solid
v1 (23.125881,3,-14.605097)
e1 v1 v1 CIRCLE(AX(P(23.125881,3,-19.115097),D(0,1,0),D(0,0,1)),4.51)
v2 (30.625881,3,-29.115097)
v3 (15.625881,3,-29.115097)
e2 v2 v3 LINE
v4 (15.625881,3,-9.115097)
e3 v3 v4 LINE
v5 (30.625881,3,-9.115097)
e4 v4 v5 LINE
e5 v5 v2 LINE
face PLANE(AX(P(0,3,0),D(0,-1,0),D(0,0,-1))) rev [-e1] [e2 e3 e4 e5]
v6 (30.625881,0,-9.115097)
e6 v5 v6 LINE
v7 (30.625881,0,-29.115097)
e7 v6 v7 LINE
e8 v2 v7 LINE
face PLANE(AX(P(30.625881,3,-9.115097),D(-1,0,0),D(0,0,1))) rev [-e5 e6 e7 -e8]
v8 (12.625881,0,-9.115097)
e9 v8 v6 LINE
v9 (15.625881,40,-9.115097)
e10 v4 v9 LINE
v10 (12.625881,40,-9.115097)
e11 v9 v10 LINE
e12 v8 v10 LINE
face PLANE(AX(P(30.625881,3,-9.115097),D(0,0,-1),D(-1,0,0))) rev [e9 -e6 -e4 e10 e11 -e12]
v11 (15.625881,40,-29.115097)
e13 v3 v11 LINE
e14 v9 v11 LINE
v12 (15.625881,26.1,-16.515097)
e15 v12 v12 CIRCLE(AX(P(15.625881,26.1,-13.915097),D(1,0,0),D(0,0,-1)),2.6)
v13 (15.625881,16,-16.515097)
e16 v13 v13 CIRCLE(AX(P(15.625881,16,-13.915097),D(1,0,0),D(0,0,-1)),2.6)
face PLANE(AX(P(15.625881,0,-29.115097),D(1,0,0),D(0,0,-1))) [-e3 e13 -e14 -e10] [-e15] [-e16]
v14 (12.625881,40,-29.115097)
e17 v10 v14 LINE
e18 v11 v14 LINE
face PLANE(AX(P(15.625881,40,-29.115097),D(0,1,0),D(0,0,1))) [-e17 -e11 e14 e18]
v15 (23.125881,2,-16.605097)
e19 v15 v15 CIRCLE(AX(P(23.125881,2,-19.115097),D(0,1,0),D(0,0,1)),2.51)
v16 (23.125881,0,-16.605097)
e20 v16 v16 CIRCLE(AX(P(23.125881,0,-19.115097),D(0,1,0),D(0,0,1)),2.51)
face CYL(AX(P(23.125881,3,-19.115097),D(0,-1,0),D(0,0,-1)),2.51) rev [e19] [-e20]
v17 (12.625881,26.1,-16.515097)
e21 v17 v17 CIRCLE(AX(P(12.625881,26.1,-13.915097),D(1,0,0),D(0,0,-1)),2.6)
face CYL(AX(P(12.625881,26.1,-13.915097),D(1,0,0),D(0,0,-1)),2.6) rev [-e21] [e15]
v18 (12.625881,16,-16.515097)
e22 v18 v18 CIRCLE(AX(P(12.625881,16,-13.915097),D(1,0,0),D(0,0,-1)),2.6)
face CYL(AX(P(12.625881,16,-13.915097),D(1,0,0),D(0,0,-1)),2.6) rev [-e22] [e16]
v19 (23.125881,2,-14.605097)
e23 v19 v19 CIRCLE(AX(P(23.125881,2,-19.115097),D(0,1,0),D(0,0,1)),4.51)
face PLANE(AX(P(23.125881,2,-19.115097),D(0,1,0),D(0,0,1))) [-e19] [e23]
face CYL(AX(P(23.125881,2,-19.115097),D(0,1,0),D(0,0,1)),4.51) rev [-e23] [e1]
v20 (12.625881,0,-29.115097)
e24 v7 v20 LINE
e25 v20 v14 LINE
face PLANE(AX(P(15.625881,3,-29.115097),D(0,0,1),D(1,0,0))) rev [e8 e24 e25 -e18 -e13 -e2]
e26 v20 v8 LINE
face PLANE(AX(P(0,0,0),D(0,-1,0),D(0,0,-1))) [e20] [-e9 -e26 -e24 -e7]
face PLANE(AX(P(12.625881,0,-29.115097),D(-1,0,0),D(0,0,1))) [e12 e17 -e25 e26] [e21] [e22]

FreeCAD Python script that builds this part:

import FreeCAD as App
import Part
import Sketcher

V = App.Vector

doc = App.newDocument("Part")
body = doc.addObject("PartDesign::Body", "Body")

# Sketch on XZ plane
sketch1 = doc.addObject("Sketcher::SketchObject", "Sketch")
body.addObject(sketch1)
sketch1.AttachmentSupport = (doc.XZ_Plane, [""])
sketch1.MapMode = "FlatFace"
sketch1.addGeometry(Part.LineSegment(V(15.6, -29.1, 0), V(15.6, -9.1, 0)), False)
sketch1.addGeometry(Part.LineSegment(V(15.6, -9.1, 0), V(30.6, -9.1, 0)), False)
sketch1.addGeometry(Part.LineSegment(V(30.6, -9.1, 0), V(30.6, -29.1, 0)), False)
sketch1.addGeometry(Part.LineSegment(V(30.6, -29.1, 0), V(15.6, -29.1, 0)), False)
sketch1.addGeometry(Part.Circle(V(23.1, -19.1, 0), V(0, 0, 1), 2.5), False)
sketch1.addConstraint(Sketcher.Constraint("Coincident", 0, 2, 1, 1))
sketch1.addConstraint(Sketcher.Constraint("Coincident", 1, 2, 2, 1))
sketch1.addConstraint(Sketcher.Constraint("Coincident", 2, 2, 3, 1))
sketch1.addConstraint(Sketcher.Constraint("Coincident", 3, 2, 0, 1))
sketch1.addConstraint(Sketcher.Constraint("Vertical", 0))
sketch1.addConstraint(Sketcher.Constraint("Horizontal", 1))
sketch1.addConstraint(Sketcher.Constraint("Vertical", 2))
sketch1.addConstraint(Sketcher.Constraint("Horizontal", 3))
sketch1.addConstraint(Sketcher.Constraint("Diameter", 4, 5.02))
sketch1.addConstraint(Sketcher.Constraint("DistanceX", 1, 1, 1, 2, 15.0))
sketch1.addConstraint(Sketcher.Constraint("DistanceY", 0, 1, 0, 2, 20.0))
sketch1.addConstraint(Sketcher.Constraint("DistanceY", 4, 3, 0, 2, 10.0))
sketch1.addConstraint(Sketcher.Constraint("DistanceX", 0, 2, 4, 3, 7.5))
sketch1.addConstraint(Sketcher.Constraint("DistanceX", -1, 1, 4, 3, 23.125881))
sketch1.addConstraint(Sketcher.Constraint("DistanceY", 4, 3, -1, 1, 19.115097))
pad1 = doc.addObject("PartDesign::Pad", "Pad")
body.addObject(pad1)
pad1.Profile = sketch1
pad1.Length = 3
pad1.Reversed = True

# Sketch on XZ plane
sketch2 = doc.addObject("Sketcher::SketchObject", "Sketch001")
body.addObject(sketch2)
sketch2.AttachmentSupport = (doc.XZ_Plane, [""])
sketch2.MapMode = "FlatFace"
sketch2.AttachmentOffset = App.Placement(V(0, 0, -3), App.Rotation())
sketch2.addGeometry(Part.Circle(V(23.1, -19.1, 0), V(0, 0, 1), 4.5), False)
sketch2.addConstraint(Sketcher.Constraint("Diameter", 0, 9.02))
sketch2.addConstraint(Sketcher.Constraint("DistanceX", -1, 1, 0, 3, 23.125881))
sketch2.addConstraint(Sketcher.Constraint("DistanceY", 0, 3, -1, 1, 19.115097))
pocket1 = doc.addObject("PartDesign::Pocket", "Pocket")
body.addObject(pocket1)
pocket1.Profile = sketch2
pocket1.Length = 1
pocket1.Reversed = True

# Sketch on XZ plane
sketch3 = doc.addObject("Sketcher::SketchObject", "Sketch002")
body.addObject(sketch3)
sketch3.AttachmentSupport = (doc.XZ_Plane, [""])
sketch3.MapMode = "FlatFace"
sketch3.AttachmentOffset = App.Placement(V(0, 0, -3), App.Rotation())
sketch3.addGeometry(Part.LineSegment(V(12.6, -29.1, 0), V(12.6, -9.1, 0)), False)
sketch3.addGeometry(Part.LineSegment(V(12.6, -9.1, 0), V(15.6, -9.1, 0)), False)
sketch3.addGeometry(Part.LineSegment(V(15.6, -9.1, 0), V(15.6, -29.1, 0)), False)
sketch3.addGeometry(Part.LineSegment(V(15.6, -29.1, 0), V(12.6, -29.1, 0)), False)
sketch3.addConstraint(Sketcher.Constraint("Coincident", 0, 2, 1, 1))
sketch3.addConstraint(Sketcher.Constraint("Coincident", 1, 2, 2, 1))
sketch3.addConstraint(Sketcher.Constraint("Coincident", 2, 2, 3, 1))
sketch3.addConstraint(Sketcher.Constraint("Coincident", 3, 2, 0, 1))
sketch3.addConstraint(Sketcher.Constraint("Vertical", 0))
sketch3.addConstraint(Sketcher.Constraint("Horizontal", 1))
sketch3.addConstraint(Sketcher.Constraint("Vertical", 2))
sketch3.addConstraint(Sketcher.Constraint("Horizontal", 3))
sketch3.addConstraint(Sketcher.Constraint("DistanceX", 1, 1, 1, 2, 3.0))
sketch3.addConstraint(Sketcher.Constraint("DistanceY", 0, 1, 0, 2, 20.0))
sketch3.addConstraint(Sketcher.Constraint("DistanceX", -1, 1, 0, 2, 12.625881))
sketch3.addConstraint(Sketcher.Constraint("DistanceY", 0, 2, -1, 1, 9.115097))
pad2 = doc.addObject("PartDesign::Pad", "Pad001")
body.addObject(pad2)
pad2.Profile = sketch3
pad2.Type = "TwoLengths"
pad2.Length = 22
pad2.Length2 = 3
pad2.Reversed = True

# Sketch on YZ plane
sketch4 = doc.addObject("Sketcher::SketchObject", "Sketch003")
body.addObject(sketch4)
sketch4.AttachmentSupport = (doc.YZ_Plane, [""])
sketch4.MapMode = "FlatFace"
sketch4.AttachmentOffset = App.Placement(V(0, 0, 12.625881), App.Rotation())
sketch4.addGeometry(Part.Circle(V(19, -23.1, 0), V(0, 0, 1), 2.6), False)
sketch4.addGeometry(Part.Circle(V(6, -23.1, 0), V(0, 0, 1), 2.6), False)
sketch4.addConstraint(Sketcher.Constraint("Equal", 0, 1))
sketch4.addConstraint(Sketcher.Constraint("Horizontal", 0, 3, 1, 3))
sketch4.addConstraint(Sketcher.Constraint("Diameter", 0, 5.2))
sketch4.addConstraint(Sketcher.Constraint("DistanceX", -1, 1, 0, 3, 19.0))
sketch4.addConstraint(Sketcher.Constraint("DistanceX", -1, 1, 1, 3, 6.0))
sketch4.addConstraint(Sketcher.Constraint("DistanceY", 0, 3, -1, 1, 23.115097))
pocket2 = doc.addObject("PartDesign::Pocket", "Pocket001")
body.addObject(pocket2)
pocket2.Profile = sketch4
pocket2.Length = 22
pocket2.Reversed = True

# Sketch on YZ plane
sketch5 = doc.addObject("Sketcher::SketchObject", "Sketch004")
body.addObject(sketch5)
sketch5.AttachmentSupport = (doc.YZ_Plane, [""])
sketch5.MapMode = "FlatFace"
sketch5.AttachmentOffset = App.Placement(V(0, 0, 12.625881), App.Rotation())
sketch5.addGeometry(Part.Circle(V(19, -23.1, 0), V(0, 0, 1), 2.6), False)
sketch5.addGeometry(Part.Circle(V(6, -23.1, 0), V(0, 0, 1), 2.6), False)
sketch5.addConstraint(Sketcher.Constraint("Equal", 0, 1))
sketch5.addConstraint(Sketcher.Constraint("Horizontal", 0, 3, 1, 3))
sketch5.addConstraint(Sketcher.Constraint("Diameter", 0, 5.2))
sketch5.addConstraint(Sketcher.Constraint("DistanceX", -1, 1, 0, 3, 19.0))
sketch5.addConstraint(Sketcher.Constraint("DistanceX", -1, 1, 1, 3, 6.0))
sketch5.addConstraint(Sketcher.Constraint("DistanceY", 0, 3, -1, 1, 23.115097))
pad3 = doc.addObject("PartDesign::Pad", "Pad002")
body.addObject(pad3)
pad3.Profile = sketch5
pad3.Length = 3

# Sketch on XZ plane
sketch6 = doc.addObject("Sketcher::SketchObject", "Sketch005")
body.addObject(sketch6)
sketch6.AttachmentSupport = (doc.XZ_Plane, [""])
sketch6.MapMode = "FlatFace"
sketch6.AttachmentOffset = App.Placement(V(0, 0, -25), App.Rotation())
sketch6.addGeometry(Part.LineSegment(V(12.6, -9.1, 0), V(15.6, -9.1, 0)), False)
sketch6.addGeometry(Part.LineSegment(V(15.6, -9.1, 0), V(15.6, -29.1, 0)), False)
sketch6.addGeometry(Part.LineSegment(V(15.6, -29.1, 0), V(12.6, -29.1, 0)), False)
sketch6.addGeometry(Part.LineSegment(V(12.6, -29.1, 0), V(12.6, -9.1, 0)), False)
sketch6.addConstraint(Sketcher.Constraint("Coincident", 0, 2, 1, 1))
sketch6.addConstraint(Sketcher.Constraint("Coincident", 1, 2, 2, 1))
sketch6.addConstraint(Sketcher.Constraint("Coincident", 2, 2, 3, 1))
sketch6.addConstraint(Sketcher.Constraint("Coincident", 3, 2, 0, 1))
sketch6.addConstraint(Sketcher.Constraint("Horizontal", 0))
sketch6.addConstraint(Sketcher.Constraint("Vertical", 1))
sketch6.addConstraint(Sketcher.Constraint("Horizontal", 2))
sketch6.addConstraint(Sketcher.Constraint("Vertical", 3))
sketch6.addConstraint(Sketcher.Constraint("DistanceX", 0, 1, 0, 2, 3.0))
sketch6.addConstraint(Sketcher.Constraint("DistanceY", 1, 2, 1, 1, 20.0))
sketch6.addConstraint(Sketcher.Constraint("DistanceX", -1, 1, 0, 2, 15.625881))
sketch6.addConstraint(Sketcher.Constraint("DistanceY", 0, 2, -1, 1, 9.115097))
pocket3 = doc.addObject("PartDesign::Pocket", "Pocket002")
body.addObject(pocket3)
pocket3.Profile = sketch6
pocket3.Length = 5
pocket3.Reversed = True

# Sketch on YZ plane
sketch7 = doc.addObject("Sketcher::SketchObject", "Sketch006")
body.addObject(sketch7)
sketch7.AttachmentSupport = (doc.YZ_Plane, [""])
sketch7.MapMode = "FlatFace"
sketch7.AttachmentOffset = App.Placement(V(0, 0, 12.625881), App.Rotation())
sketch7.addGeometry(Part.LineSegment(V(40, -29, 0), V(20, -29, 0)), False)
sketch7.addGeometry(Part.LineSegment(V(20, -29, 0), V(20, -9, 0)), False)
sketch7.addGeometry(Part.LineSegment(V(20, -9, 0), V(40, -9, 0)), False)
sketch7.addGeometry(Part.LineSegment(V(40, -9, 0), V(40, -29, 0)), False)
sketch7.addConstraint(Sketcher.Constraint("Coincident", 0, 2, 1, 1))
sketch7.addConstraint(Sketcher.Constraint("Coincident", 1, 2, 2, 1))
sketch7.addConstraint(Sketcher.Constraint("Coincident", 2, 2, 3, 1))
sketch7.addConstraint(Sketcher.Constraint("Coincident", 3, 2, 0, 1))
sketch7.addConstraint(Sketcher.Constraint("Horizontal", 0))
sketch7.addConstraint(Sketcher.Constraint("Vertical", 1))
sketch7.addConstraint(Sketcher.Constraint("Horizontal", 2))
sketch7.addConstraint(Sketcher.Constraint("Vertical", 3))
sketch7.addConstraint(Sketcher.Constraint("Equal", 2, 1))
sketch7.addConstraint(Sketcher.Constraint("DistanceX", 0, 2, 0, 1, 20.0))
sketch7.addConstraint(Sketcher.Constraint("DistanceX", -1, 1, 0, 2, 20.0))
sketch7.addConstraint(Sketcher.Constraint("DistanceY", 0, 2, -1, 1, 29.115097))
pad4 = doc.addObject("PartDesign::Pad", "Pad003")
body.addObject(pad4)
pad4.Profile = sketch7
pad4.Length = 3

# Sketch on YZ plane
sketch8 = doc.addObject("Sketcher::SketchObject", "Sketch007")
body.addObject(sketch8)
sketch8.AttachmentSupport = (doc.YZ_Plane, [""])
sketch8.MapMode = "FlatFace"
sketch8.AttachmentOffset = App.Placement(V(0, 0, 15.625881), App.Rotation())
sketch8.addGeometry(Part.Circle(V(16, -13.9, 0), V(0, 0, 1), 2.6), False)
sketch8.addGeometry(Part.Circle(V(26.1, -13.9, 0), V(0, 0, 1), 2.6), False)
sketch8.addConstraint(Sketcher.Constraint("Equal", 0, 1))
sketch8.addConstraint(Sketcher.Constraint("Horizontal", 0, 3, 1, 3))
sketch8.addConstraint(Sketcher.Constraint("Diameter", 0, 5.2))
sketch8.addConstraint(Sketcher.Constraint("DistanceX", -1, 1, 0, 3, 16.0))
sketch8.addConstraint(Sketcher.Constraint("DistanceX", -1, 1, 1, 3, 26.1))
sketch8.addConstraint(Sketcher.Constraint("DistanceY", 0, 3, -1, 1, 13.915097))
pocket4 = doc.addObject("PartDesign::Pocket", "Pocket003")
body.addObject(pocket4)
pocket4.Profile = sketch8
pocket4.Length = 3

doc.recompute()
